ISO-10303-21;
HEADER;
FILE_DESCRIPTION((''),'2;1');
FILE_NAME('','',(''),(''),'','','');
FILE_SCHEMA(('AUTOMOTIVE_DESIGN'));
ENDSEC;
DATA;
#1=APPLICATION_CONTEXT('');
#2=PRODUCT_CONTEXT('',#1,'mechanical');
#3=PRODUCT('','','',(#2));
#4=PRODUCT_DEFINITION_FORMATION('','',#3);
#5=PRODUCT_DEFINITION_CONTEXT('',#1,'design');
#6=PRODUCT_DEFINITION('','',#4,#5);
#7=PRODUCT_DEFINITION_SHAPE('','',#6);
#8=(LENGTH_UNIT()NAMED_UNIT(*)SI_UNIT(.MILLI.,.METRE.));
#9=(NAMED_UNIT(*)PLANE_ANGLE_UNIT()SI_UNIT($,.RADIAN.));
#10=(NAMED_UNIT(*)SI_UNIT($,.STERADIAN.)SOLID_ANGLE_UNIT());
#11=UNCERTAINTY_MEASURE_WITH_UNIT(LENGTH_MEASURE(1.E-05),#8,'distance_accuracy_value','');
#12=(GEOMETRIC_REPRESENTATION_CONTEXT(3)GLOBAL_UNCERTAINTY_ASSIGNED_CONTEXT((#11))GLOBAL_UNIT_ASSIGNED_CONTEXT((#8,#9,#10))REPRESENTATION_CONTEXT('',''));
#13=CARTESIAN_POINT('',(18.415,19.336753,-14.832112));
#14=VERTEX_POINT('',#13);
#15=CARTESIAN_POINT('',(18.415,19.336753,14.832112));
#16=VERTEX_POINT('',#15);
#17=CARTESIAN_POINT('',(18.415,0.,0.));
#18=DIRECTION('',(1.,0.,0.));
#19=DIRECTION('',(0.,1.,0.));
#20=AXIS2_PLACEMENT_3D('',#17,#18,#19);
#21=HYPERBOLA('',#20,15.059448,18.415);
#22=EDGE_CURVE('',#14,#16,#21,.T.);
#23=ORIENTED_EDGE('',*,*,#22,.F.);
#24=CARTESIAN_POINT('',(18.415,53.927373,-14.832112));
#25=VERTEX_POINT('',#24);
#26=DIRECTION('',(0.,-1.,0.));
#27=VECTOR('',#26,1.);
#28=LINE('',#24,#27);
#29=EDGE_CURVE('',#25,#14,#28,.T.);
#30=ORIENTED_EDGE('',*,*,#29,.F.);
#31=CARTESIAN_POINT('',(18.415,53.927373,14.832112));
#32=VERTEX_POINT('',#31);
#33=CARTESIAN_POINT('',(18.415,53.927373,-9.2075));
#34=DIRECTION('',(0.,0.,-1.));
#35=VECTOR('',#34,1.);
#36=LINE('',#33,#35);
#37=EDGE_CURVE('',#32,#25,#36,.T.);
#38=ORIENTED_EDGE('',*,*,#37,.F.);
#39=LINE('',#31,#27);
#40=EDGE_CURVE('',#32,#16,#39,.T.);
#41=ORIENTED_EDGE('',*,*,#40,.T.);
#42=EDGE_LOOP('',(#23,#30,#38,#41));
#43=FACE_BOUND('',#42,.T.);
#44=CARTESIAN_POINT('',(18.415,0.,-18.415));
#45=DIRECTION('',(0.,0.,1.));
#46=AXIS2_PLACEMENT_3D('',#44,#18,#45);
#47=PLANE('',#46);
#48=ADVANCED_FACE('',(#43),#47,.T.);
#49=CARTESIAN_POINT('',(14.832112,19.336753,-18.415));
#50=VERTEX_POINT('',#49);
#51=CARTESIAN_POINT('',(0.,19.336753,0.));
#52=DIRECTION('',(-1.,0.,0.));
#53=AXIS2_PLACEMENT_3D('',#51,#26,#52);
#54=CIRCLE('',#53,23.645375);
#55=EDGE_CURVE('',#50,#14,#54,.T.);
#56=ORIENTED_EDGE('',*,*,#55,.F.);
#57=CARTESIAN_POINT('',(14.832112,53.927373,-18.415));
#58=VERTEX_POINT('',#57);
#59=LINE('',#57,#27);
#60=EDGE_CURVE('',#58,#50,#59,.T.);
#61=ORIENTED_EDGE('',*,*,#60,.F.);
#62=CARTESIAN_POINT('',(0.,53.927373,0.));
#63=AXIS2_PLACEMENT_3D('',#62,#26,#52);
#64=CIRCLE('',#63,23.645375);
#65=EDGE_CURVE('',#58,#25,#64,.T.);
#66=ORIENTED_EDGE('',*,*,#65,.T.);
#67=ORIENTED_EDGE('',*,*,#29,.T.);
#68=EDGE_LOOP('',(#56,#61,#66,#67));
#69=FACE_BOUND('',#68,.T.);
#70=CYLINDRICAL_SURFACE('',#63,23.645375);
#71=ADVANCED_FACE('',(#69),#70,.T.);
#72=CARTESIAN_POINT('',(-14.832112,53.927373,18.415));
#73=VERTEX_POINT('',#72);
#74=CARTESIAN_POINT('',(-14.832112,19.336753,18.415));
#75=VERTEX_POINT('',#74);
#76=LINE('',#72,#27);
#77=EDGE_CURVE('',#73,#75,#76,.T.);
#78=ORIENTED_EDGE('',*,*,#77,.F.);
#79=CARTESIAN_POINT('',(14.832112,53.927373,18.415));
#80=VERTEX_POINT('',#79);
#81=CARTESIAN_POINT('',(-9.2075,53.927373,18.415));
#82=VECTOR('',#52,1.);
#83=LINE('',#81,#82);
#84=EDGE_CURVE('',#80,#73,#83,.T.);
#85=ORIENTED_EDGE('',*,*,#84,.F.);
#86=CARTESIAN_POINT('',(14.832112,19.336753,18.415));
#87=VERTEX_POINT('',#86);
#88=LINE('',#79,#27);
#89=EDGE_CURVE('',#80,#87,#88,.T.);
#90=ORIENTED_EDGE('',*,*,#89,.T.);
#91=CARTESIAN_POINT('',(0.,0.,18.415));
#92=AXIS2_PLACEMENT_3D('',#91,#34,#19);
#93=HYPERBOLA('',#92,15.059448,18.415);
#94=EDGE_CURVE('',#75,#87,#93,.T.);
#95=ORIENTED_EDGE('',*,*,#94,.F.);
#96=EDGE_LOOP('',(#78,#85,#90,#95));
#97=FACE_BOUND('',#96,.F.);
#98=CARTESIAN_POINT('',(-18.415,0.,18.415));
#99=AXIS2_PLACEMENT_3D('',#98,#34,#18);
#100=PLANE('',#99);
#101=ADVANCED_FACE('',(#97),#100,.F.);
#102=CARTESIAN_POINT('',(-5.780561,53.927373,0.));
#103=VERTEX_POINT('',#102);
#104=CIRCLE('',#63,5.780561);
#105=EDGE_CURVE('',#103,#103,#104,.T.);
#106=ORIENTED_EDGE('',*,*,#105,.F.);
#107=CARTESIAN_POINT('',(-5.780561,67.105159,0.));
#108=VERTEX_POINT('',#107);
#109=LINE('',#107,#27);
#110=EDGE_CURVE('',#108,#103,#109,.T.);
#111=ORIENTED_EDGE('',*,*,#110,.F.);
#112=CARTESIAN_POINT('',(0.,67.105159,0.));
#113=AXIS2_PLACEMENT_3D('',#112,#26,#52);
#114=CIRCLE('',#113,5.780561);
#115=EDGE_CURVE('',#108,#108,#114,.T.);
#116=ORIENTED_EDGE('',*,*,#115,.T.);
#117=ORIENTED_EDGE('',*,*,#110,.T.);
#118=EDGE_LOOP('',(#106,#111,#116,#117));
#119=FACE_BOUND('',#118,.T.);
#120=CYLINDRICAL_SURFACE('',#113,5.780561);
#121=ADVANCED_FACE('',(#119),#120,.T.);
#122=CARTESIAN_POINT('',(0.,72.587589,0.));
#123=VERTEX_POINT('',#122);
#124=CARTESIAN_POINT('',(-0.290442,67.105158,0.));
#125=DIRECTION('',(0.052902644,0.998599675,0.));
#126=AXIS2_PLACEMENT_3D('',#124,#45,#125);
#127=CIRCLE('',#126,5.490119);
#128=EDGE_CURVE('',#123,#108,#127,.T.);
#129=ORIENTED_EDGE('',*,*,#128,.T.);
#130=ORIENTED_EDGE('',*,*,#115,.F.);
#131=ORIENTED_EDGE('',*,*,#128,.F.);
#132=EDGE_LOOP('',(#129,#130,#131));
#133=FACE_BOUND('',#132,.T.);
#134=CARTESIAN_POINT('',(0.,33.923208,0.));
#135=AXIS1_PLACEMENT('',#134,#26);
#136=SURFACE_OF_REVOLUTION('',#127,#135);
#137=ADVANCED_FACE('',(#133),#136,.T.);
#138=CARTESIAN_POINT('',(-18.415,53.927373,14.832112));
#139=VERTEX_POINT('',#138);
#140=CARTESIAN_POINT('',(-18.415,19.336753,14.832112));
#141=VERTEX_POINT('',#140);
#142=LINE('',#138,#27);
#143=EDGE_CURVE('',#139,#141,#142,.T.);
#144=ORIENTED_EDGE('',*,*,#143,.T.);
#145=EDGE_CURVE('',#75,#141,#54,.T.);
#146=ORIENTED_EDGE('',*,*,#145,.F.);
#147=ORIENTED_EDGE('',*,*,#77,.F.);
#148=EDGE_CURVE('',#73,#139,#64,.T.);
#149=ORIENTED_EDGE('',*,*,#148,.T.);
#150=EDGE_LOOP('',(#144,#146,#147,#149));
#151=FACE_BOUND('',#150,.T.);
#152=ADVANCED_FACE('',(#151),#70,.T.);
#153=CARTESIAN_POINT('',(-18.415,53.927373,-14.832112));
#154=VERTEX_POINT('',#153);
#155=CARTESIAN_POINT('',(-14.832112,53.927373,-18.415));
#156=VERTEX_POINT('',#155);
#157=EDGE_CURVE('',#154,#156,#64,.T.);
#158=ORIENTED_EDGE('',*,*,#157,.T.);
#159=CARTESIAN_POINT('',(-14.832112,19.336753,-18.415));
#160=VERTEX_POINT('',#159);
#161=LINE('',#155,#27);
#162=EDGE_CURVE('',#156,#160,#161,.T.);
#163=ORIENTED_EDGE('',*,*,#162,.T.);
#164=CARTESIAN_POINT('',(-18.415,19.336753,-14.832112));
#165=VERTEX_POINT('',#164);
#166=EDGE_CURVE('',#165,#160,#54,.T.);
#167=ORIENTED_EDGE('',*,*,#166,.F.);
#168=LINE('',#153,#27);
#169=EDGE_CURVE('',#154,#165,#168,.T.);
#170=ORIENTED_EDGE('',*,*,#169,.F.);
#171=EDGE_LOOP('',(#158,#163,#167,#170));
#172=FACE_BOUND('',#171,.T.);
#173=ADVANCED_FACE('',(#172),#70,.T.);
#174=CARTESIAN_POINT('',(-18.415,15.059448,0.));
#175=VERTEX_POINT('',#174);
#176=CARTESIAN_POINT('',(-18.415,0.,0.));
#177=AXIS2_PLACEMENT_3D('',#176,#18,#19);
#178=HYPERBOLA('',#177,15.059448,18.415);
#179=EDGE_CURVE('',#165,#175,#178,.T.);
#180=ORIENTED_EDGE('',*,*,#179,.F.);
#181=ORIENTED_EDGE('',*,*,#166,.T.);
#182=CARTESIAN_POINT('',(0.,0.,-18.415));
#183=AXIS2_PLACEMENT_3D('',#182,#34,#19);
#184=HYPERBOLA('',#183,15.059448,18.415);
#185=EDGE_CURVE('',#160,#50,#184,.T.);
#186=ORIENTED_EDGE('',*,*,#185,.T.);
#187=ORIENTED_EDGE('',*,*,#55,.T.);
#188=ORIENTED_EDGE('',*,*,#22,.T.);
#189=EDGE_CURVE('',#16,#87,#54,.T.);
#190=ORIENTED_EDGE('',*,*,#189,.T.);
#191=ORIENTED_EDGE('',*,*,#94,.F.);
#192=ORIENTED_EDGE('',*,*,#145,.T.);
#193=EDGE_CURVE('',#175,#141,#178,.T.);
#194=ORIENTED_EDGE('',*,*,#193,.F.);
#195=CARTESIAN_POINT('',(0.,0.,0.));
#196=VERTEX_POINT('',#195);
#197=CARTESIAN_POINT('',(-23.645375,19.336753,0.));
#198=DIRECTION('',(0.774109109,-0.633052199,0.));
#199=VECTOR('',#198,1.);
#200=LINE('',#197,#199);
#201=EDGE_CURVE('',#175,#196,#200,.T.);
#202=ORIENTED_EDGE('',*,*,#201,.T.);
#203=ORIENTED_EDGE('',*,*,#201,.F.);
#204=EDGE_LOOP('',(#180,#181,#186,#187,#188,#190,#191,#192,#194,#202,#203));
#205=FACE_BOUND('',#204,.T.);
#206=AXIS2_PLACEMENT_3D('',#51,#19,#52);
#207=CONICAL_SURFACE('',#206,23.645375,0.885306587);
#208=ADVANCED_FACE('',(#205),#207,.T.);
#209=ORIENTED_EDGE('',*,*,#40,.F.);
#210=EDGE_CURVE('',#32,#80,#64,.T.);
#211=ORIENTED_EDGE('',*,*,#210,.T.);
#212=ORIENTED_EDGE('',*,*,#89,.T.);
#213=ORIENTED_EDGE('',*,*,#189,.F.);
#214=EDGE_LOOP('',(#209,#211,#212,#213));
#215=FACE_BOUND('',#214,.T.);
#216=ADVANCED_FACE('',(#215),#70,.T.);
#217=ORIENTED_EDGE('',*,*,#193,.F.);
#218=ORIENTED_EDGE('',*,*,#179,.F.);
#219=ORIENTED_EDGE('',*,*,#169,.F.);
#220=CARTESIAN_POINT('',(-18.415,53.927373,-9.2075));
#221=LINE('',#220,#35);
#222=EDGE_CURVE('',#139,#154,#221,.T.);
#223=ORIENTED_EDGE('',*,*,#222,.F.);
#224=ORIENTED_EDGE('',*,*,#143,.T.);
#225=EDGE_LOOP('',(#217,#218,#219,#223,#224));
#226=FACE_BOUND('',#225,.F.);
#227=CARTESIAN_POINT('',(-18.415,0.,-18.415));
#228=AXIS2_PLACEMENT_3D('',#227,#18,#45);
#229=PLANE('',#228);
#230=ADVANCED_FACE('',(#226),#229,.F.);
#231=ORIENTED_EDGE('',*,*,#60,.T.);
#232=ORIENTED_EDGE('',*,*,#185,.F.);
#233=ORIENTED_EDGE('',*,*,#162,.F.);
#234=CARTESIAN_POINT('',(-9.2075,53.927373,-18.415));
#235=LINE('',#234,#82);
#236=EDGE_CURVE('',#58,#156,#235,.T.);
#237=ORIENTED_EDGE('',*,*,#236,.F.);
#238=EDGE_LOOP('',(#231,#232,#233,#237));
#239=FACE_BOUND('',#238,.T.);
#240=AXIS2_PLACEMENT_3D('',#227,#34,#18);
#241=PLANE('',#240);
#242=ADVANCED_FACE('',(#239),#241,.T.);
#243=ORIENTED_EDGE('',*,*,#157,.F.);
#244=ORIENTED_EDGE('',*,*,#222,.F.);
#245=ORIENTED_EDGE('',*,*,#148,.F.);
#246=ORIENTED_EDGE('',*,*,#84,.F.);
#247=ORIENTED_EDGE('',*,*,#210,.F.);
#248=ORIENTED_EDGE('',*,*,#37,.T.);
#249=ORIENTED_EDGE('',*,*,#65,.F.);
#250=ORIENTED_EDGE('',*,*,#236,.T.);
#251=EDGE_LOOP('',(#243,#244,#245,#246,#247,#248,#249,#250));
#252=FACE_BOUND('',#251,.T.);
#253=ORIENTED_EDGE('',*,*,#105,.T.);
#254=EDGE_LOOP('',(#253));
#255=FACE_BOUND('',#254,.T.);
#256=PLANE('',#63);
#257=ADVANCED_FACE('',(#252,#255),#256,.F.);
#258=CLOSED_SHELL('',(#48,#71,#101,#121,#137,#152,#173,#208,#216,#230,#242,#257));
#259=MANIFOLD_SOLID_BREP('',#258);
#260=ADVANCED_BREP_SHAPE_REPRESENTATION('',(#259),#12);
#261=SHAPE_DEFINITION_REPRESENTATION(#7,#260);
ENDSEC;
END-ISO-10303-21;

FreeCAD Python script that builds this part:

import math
import FreeCAD as App
import Part
import Sketcher

V = App.Vector
Q = App.Units.Quantity


def add_polygon(sketch, points):
    """Adds a closed chain of lines whose ends are joined by coincident constraints."""
    first, n = sketch.GeometryCount, len(points)
    for a, b in zip(points, points[1:] + points[:1]):
        sketch.addGeometry(Part.LineSegment(App.Vector(*a, 0), App.Vector(*b, 0)), False)
    for i in range(n):
        sketch.addConstraint(Sketcher.Constraint("Coincident", first + i, 2, first + (i + 1) % n, 1))

doc = App.newDocument("Part")
body = doc.addObject("PartDesign::Body", "Body")

sketch1 = body.newObject("Sketcher::SketchObject", "Sketch")
sketch1.AttachmentSupport = (doc.getObject("XY_Plane"), [""])
sketch1.MapMode = "FlatFace"
sketch1.addGeometry([
    Part.LineSegment(V(-6, 67, 0), V(-6, 54, 0)),
    Part.LineSegment(V(-6, 54, 0), V(-24, 54, 0)),
    Part.LineSegment(V(-24, 54, 0), V(-24, 19, 0)),
    Part.LineSegment(V(-24, 19, 0), V(0, 0, 0)),
    Part.LineSegment(V(0, 0, 0), V(0, 73, 0)),
    Part.ArcOfCircle(Part.Circle(V(0, 67, 0), V(0, 0, 1), 5), math.radians(87), math.radians(180)),
], False)
sketch1.addConstraint([
    Sketcher.Constraint("Coincident", 0, 2, 1, 1),
    Sketcher.Constraint("Coincident", 1, 2, 2, 1),
    Sketcher.Constraint("Coincident", 2, 2, 3, 1),
    Sketcher.Constraint("Coincident", 3, 2, 4, 1),
    Sketcher.Constraint("Coincident", 4, 2, 5, 1),
    Sketcher.Constraint("Tangent", 5, 2, 0, 1),
    Sketcher.Constraint("Vertical", 0),
    Sketcher.Constraint("Horizontal", 1),
    Sketcher.Constraint("Vertical", 2),
    Sketcher.Constraint("Vertical", 4),
    Sketcher.Constraint("Coincident", 3, 2, -1, 1),
    Sketcher.Constraint("Radius", 5, Q("5.490119 mm")),
    Sketcher.Constraint("DistanceY", 2, 2, 2, 1, Q("34.59062 mm")),
    Sketcher.Constraint("DistanceY", 4, 1, 4, 2, Q("72.587589 mm")),
    Sketcher.Constraint("DistanceX", 1, 2, 1, 1, Q("17.864814 mm")),
    Sketcher.Constraint("DistanceY", 0, 2, 0, 1, Q("13.177786 mm")),
    Sketcher.Constraint("DistanceX", 5, 3, -1, 1, Q("0.290442 mm")),
])
revolution = body.newObject("PartDesign::Revolution", "Revolution")
revolution.Profile = sketch1
revolution.ReferenceAxis = (sketch1, ["V_Axis"])
revolution.Angle = 360

sketch2 = body.newObject("Sketcher::SketchObject", "Sketch001")
sketch2.AttachmentSupport = (doc.getObject("XZ_Plane"), [""])
sketch2.MapMode = "FlatFace"
add_polygon(sketch2, [(-42, 38), (-42, -38), (42, -38), (42, 38)])
add_polygon(sketch2, [(18, -18), (-18, -18), (-18, 18), (18, 18)])
sketch2.addConstraint([
    Sketcher.Constraint("Vertical", 0),
    Sketcher.Constraint("Horizontal", 1),
    Sketcher.Constraint("Vertical", 2),
    Sketcher.Constraint("Horizontal", 3),
    Sketcher.Constraint("Horizontal", 4),
    Sketcher.Constraint("Vertical", 5),
    Sketcher.Constraint("Horizontal", 6),
    Sketcher.Constraint("Vertical", 7),
    Sketcher.Constraint("Symmetric", 0, 2, 2, 2, -1, 1),
    Sketcher.Constraint("Symmetric", 4, 2, 6, 2, -1, 1),
    Sketcher.Constraint("Equal", 6, 5),
    Sketcher.Constraint("DistanceX", 4, 2, 4, 1, Q("1.45 in")),
    Sketcher.Constraint("DistanceX", 1, 1, 1, 2, Q("83.072104 mm")),
    Sketcher.Constraint("DistanceY", 0, 2, 0, 1, Q("76.524554 mm")),
])
pocket1 = body.newObject("PartDesign::Pocket", "Pocket")
pocket1.Profile = sketch2
pocket1.Length = Q("3.21 in")

doc.recompute()
